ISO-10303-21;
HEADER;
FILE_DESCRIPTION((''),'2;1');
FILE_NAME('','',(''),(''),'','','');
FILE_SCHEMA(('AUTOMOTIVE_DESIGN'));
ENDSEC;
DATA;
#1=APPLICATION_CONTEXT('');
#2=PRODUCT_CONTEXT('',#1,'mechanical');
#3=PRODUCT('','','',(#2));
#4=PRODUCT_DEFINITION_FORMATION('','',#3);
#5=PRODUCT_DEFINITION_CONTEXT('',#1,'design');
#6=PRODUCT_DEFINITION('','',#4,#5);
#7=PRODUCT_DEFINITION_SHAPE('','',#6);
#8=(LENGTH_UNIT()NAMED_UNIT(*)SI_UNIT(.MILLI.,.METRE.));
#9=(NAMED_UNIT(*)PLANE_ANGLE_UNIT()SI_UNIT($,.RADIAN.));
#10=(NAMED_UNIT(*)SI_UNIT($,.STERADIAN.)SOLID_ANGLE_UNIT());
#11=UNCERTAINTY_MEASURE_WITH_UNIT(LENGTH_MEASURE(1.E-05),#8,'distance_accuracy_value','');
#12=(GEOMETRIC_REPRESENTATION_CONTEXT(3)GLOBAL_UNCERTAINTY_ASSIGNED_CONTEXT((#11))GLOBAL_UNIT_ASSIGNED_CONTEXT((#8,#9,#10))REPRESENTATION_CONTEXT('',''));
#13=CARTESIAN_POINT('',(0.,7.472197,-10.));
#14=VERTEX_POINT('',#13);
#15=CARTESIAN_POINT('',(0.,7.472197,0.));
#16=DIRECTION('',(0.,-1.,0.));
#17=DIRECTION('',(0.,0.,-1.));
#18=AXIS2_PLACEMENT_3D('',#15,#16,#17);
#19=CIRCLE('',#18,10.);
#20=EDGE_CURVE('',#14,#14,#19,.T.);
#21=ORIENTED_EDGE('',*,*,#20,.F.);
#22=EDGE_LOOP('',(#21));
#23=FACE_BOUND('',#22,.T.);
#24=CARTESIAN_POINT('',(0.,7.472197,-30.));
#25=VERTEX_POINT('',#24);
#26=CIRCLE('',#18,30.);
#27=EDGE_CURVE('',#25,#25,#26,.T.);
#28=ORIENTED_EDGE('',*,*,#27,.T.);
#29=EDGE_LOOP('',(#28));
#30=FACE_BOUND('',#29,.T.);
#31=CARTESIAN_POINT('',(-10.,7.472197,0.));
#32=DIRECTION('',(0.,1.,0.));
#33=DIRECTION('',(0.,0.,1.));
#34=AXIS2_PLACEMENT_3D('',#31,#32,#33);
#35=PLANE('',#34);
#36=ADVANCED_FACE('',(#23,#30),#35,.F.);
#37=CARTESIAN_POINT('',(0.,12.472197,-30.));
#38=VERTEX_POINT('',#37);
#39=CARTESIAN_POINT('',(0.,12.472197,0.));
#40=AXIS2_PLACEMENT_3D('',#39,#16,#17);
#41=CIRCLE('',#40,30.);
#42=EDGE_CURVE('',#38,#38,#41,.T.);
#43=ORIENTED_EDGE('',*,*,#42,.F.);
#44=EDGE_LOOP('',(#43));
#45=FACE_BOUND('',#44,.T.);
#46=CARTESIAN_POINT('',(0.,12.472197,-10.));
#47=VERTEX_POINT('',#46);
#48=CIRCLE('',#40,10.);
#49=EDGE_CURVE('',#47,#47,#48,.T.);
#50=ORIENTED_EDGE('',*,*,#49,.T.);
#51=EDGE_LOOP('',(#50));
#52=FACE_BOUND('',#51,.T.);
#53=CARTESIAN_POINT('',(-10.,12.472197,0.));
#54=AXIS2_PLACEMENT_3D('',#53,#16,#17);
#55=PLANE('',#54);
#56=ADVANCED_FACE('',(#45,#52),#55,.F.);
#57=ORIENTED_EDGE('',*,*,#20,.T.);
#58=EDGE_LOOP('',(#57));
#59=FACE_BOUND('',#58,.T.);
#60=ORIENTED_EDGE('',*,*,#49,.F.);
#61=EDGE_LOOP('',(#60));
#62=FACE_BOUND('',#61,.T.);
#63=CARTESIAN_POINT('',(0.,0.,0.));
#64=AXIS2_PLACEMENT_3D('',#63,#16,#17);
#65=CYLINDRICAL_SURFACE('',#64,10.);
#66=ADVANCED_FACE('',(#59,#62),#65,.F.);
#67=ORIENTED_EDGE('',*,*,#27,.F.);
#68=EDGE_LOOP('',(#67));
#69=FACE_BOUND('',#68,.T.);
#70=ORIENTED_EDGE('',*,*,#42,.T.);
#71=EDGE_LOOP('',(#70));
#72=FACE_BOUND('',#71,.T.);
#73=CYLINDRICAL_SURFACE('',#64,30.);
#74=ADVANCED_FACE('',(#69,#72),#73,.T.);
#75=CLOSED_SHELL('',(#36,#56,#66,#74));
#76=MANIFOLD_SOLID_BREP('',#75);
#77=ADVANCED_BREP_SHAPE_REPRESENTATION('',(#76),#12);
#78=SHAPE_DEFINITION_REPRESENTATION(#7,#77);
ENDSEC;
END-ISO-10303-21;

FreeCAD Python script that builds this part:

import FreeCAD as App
import Part
import Sketcher

V = App.Vector
Q = App.Units.Quantity


def add_polygon(sketch, points):
    """Adds a closed chain of lines whose ends are joined by coincident constraints."""
    first, n = sketch.GeometryCount, len(points)
    for a, b in zip(points, points[1:] + points[:1]):
        sketch.addGeometry(Part.LineSegment(App.Vector(*a, 0), App.Vector(*b, 0)), False)
    for i in range(n):
        sketch.addConstraint(Sketcher.Constraint("Coincident", first + i, 2, first + (i + 1) % n, 1))

doc = App.newDocument("Part")
body = doc.addObject("PartDesign::Body", "Body")

sketch1 = body.newObject("Sketcher::SketchObject", "Sketch")
sketch1.AttachmentSupport = (doc.getObject("XY_Plane"), [""])
sketch1.MapMode = "FlatFace"
add_polygon(sketch1, [(-30, 12), (-30, 7), (-10, 7), (-10, 12)])
sketch1.addConstraint(Sketcher.Constraint("Vertical", 0))
sketch1.addConstraint(Sketcher.Constraint("Horizontal", 1))
sketch1.addConstraint(Sketcher.Constraint("Vertical", 2))
sketch1.addConstraint(Sketcher.Constraint("Horizontal", 3))
sketch1.addConstraint(Sketcher.Constraint("DistanceX", 1, 1, 1, 2, Q("20 mm")))
sketch1.addConstraint(Sketcher.Constraint("DistanceY", 0, 2, 0, 1, Q("5 mm")))
sketch1.addConstraint(Sketcher.Constraint("DistanceX", 0, 2, -1, 1, Q("30 mm")))
sketch1.addConstraint(Sketcher.Constraint("DistanceY", -1, 1, 0, 2, Q("7.472197 mm")))
revolution = body.newObject("PartDesign::Revolution", "Revolution")
revolution.Profile = sketch1
revolution.ReferenceAxis = (sketch1, ["V_Axis"])
revolution.Angle = 360

doc.recompute()
